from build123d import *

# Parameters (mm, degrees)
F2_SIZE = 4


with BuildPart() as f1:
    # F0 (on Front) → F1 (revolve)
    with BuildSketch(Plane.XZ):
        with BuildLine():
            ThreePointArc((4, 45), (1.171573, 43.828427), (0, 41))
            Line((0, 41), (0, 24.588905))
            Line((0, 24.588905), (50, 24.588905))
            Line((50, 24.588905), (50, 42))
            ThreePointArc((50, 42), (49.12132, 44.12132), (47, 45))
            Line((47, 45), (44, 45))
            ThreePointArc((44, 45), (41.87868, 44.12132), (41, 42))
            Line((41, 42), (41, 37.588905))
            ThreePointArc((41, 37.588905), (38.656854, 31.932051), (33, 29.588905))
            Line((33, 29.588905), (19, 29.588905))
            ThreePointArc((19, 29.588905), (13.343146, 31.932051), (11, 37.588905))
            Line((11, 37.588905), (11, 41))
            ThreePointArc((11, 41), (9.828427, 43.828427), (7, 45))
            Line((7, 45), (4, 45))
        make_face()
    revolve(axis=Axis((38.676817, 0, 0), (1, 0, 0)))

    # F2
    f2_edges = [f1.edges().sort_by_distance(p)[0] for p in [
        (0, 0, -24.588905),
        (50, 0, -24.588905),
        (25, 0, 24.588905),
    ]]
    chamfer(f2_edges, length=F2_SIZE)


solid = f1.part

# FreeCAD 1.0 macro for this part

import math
import FreeCAD as App
import Part
import Sketcher
from FreeCAD import Vector


def edges_at(feature, points):
    """Names of the edges that pass closest to the given points."""
    edges = feature.Shape.Edges
    near = lambda p: min(range(len(edges)), key=lambda i: edges[i].distToShape(Part.Vertex(*p))[0])
    return sorted({f"Edge{near(p) + 1}" for p in points})

doc = App.newDocument("Part")
body = doc.addObject("PartDesign::Body", "Body")

sketch1 = body.newObject("Sketcher::SketchObject", "Sketch")
sketch1.AttachmentSupport = (doc.getObject("XZ_Plane"), [""])
sketch1.MapMode = "FlatFace"
sketch1.addGeometry([
    Part.ArcOfCircle(Part.Circle(Vector(4, 41, 0), Vector(0, 0, 1), 4), math.radians(90), math.radians(180)),
    Part.LineSegment(Vector(0, 41, 0), Vector(0, 24.6, 0)),
    Part.LineSegment(Vector(0, 24.6, 0), Vector(50, 24.6, 0)),
    Part.LineSegment(Vector(50, 24.6, 0), Vector(50, 42, 0)),
    Part.ArcOfCircle(Part.Circle(Vector(47, 42, 0), Vector(0, 0, 1), 3), math.radians(0), math.radians(90)),
    Part.LineSegment(Vector(47, 45, 0), Vector(44, 45, 0)),
    Part.ArcOfCircle(Part.Circle(Vector(44, 42, 0), Vector(0, 0, 1), 3), math.radians(90), math.radians(180)),
    Part.LineSegment(Vector(41, 42, 0), Vector(41, 37.6, 0)),
    Part.ArcOfCircle(Part.Circle(Vector(33, 37.6, 0), Vector(0, 0, 1), 8), math.radians(-90), math.radians(0)),
    Part.LineSegment(Vector(33, 29.6, 0), Vector(19, 29.6, 0)),
    Part.ArcOfCircle(Part.Circle(Vector(19, 37.6, 0), Vector(0, 0, 1), 8), math.radians(-180), math.radians(-90)),
    Part.LineSegment(Vector(11, 37.6, 0), Vector(11, 41, 0)),
    Part.ArcOfCircle(Part.Circle(Vector(7, 41, 0), Vector(0, 0, 1), 4), math.radians(0), math.radians(90)),
    Part.LineSegment(Vector(7, 45, 0), Vector(4, 45, 0)),
], False)
sketch1.addConstraint([
    Sketcher.Constraint("Tangent", 0, 2, 1, 1),
    Sketcher.Constraint("Coincident", 1, 2, 2, 1),
    Sketcher.Constraint("Coincident", 2, 2, 3, 1),
    Sketcher.Constraint("Tangent", 3, 2, 4, 1),
    Sketcher.Constraint("Tangent", 4, 2, 5, 1),
    Sketcher.Constraint("Tangent", 5, 2, 6, 1),
    Sketcher.Constraint("Tangent", 6, 2, 7, 1),
    Sketcher.Constraint("Tangent", 7, 2, 8, 2),
    Sketcher.Constraint("Tangent", 8, 1, 9, 1),
    Sketcher.Constraint("Tangent", 9, 2, 10, 2),
    Sketcher.Constraint("Tangent", 10, 1, 11, 1),
    Sketcher.Constraint("Tangent", 11, 2, 12, 1),
    Sketcher.Constraint("Tangent", 12, 2, 13, 1),
    Sketcher.Constraint("Tangent", 13, 2, 0, 1),
    Sketcher.Constraint("Vertical", 1),
    Sketcher.Constraint("Horizontal", 2),
    Sketcher.Constraint("Vertical", 3),
    Sketcher.Constraint("Horizontal", 5),
    Sketcher.Constraint("Vertical", 7),
    Sketcher.Constraint("Horizontal", 9),
    Sketcher.Constraint("Vertical", 11),
    Sketcher.Constraint("Horizontal", 13),
    Sketcher.Constraint("Equal", 4, 6),
    Sketcher.Constraint("Equal", 8, 10),
    Sketcher.Constraint("Equal", 0, 12),
    Sketcher.Constraint("PointOnObject", 0, 2, -2),
    Sketcher.Constraint("Horizontal", 5, 2, 12, 2),
    Sketcher.Constraint("Equal", 5, 13),
    Sketcher.Constraint("Radius", 0, 4.0),
    Sketcher.Constraint("Radius", 4, 3.000001),
    Sketcher.Constraint("Radius", 8, 8.000001),
    Sketcher.Constraint("DistanceX", 2, 1, 2, 2, 50.0),
    Sketcher.Constraint("DistanceX", 5, 2, 5, 1, 3.0),
    Sketcher.Constraint("DistanceY", -1, 1, 0, 3, 41.0),
    Sketcher.Constraint("DistanceY", 1, 2, 10, 3, 13.000001),
    Sketcher.Constraint("DistanceY", 1, 2, 1, 1, 16.411095),
])
revolution = body.newObject("PartDesign::Revolution", "Revolution")
revolution.Profile = sketch1
revolution.ReferenceAxis = (sketch1, ["H_Axis"])
revolution.Angle = 360
doc.recompute()

chamfer = body.newObject("PartDesign::Chamfer", "Chamfer")
chamfer.Base = (revolution, edges_at(revolution, [(0, 0, -24.589), (50, 0, -24.589), (25, 0, 24.589)]))
chamfer.Size = 4

doc.recompute()
